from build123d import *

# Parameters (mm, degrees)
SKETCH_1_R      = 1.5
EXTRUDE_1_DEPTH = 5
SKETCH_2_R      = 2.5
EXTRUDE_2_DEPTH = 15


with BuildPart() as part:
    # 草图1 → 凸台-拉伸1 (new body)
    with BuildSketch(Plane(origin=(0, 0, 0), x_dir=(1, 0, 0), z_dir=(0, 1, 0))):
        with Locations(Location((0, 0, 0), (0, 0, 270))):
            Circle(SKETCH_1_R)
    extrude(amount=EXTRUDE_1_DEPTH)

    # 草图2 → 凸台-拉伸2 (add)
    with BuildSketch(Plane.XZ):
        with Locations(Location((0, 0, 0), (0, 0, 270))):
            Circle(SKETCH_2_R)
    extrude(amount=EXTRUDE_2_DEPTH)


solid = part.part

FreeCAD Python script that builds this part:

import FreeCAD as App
import Part
import Sketcher
from FreeCAD import Vector
Q = App.Units.Quantity

doc = App.newDocument("Part")
params = doc.addObject("Spreadsheet::Sheet", "Params")
for row, (alias, value) in enumerate([
    ("sketch1_diameter", "3 mm"),
    ("pad1_length", "5 mm"),
    ("sketch2_diameter", "5 mm"),
    ("pad2_length", "15 mm"),
], start=1):
    params.set(f"A{row}", alias)
    params.set(f"B{row}", "=" + value)
    params.setAlias(f"B{row}", alias)

body = doc.addObject("PartDesign::Body", "Body")

# Sketch on XZ plane
sketch1 = body.newObject("Sketcher::SketchObject", "Sketch")
sketch1.AttachmentSupport = (doc.getObject("XZ_Plane"), [""])
sketch1.MapMode = "FlatFace"
sketch1.addGeometry(Part.Circle(Vector(0, 0, 0), Vector(0, 0, 1), 1.5), False)
sketch1.addConstraint([
    Sketcher.Constraint("Coincident", 0, 3, -1, 1),
    Sketcher.Constraint("Diameter", 0, Q("3 mm")),
])
sketch1.setExpression("Constraints[1]", "Params.sketch1_diameter")
pad1 = body.newObject("PartDesign::Pad", "Pad")
pad1.Profile = sketch1
pad1.setExpression("Length", "Params.pad1_length")
pad1.Reversed = True

# Sketch on XZ plane
sketch2 = body.newObject("Sketcher::SketchObject", "Sketch001")
sketch2.AttachmentSupport = (doc.getObject("XZ_Plane"), [""])
sketch2.MapMode = "FlatFace"
sketch2.addGeometry(Part.Circle(Vector(0, 0, 0), Vector(0, 0, 1), 2.5), False)
sketch2.addConstraint([
    Sketcher.Constraint("Coincident", 0, 3, -1, 1),
    Sketcher.Constraint("Diameter", 0, Q("5 mm")),
])
sketch2.setExpression("Constraints[1]", "Params.sketch2_diameter")
pad2 = body.newObject("PartDesign::Pad", "Pad001")
pad2.Profile = sketch2
pad2.setExpression("Length", "Params.pad2_length")

doc.recompute()
